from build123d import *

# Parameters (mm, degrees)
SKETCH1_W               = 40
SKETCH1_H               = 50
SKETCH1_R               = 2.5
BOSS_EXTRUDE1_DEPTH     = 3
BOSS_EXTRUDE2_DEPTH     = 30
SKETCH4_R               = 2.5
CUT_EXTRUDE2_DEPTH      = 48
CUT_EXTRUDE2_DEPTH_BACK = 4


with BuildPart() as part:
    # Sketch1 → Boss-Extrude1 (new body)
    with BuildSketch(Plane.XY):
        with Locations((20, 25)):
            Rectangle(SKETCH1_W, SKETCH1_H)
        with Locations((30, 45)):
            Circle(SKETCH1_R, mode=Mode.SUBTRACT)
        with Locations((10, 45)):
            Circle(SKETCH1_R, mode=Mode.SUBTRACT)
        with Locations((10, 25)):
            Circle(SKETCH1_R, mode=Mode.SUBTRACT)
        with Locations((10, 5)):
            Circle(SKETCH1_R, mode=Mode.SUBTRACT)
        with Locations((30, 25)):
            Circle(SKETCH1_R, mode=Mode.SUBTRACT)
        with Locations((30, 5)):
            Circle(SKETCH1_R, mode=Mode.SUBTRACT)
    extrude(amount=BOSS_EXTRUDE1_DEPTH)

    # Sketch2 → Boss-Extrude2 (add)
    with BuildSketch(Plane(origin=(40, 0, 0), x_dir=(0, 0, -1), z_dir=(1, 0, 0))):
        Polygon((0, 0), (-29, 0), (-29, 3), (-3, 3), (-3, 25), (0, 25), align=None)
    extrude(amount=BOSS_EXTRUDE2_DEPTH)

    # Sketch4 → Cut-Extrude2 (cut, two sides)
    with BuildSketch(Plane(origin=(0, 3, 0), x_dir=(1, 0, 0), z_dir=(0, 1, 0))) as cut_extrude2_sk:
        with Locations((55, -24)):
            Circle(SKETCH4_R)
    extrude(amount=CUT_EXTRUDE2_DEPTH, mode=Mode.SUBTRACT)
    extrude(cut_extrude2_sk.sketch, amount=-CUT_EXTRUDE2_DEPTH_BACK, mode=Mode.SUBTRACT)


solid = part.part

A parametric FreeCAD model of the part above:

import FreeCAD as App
import Part
import Sketcher
Q = App.Units.Quantity


def add_polygon(sketch, points):
    """Adds a closed chain of lines whose ends are joined by coincident constraints."""
    first, n = sketch.GeometryCount, len(points)
    for a, b in zip(points, points[1:] + points[:1]):
        sketch.addGeometry(Part.LineSegment(App.Vector(*a, 0), App.Vector(*b, 0)), False)
    for i in range(n):
        sketch.addConstraint(Sketcher.Constraint("Coincident", first + i, 2, first + (i + 1) % n, 1))

doc = App.newDocument("Part")
body = doc.addObject("PartDesign::Body", "Body")

# Sketch on XY plane
sketch1 = body.newObject("Sketcher::SketchObject", "Sketch")
sketch1.AttachmentSupport = (doc.getObject("XY_Plane"), [""])
sketch1.MapMode = "FlatFace"
add_polygon(sketch1, [(0, 50), (0, 0), (40, 0), (40, 50)])  # lines 0-3
sketch1.addGeometry(Part.Circle(App.Vector(10, 5, 0), App.Vector(0, 0, 1), 2.5), False)  # 4
sketch1.addGeometry(Part.Circle(App.Vector(30, 5, 0), App.Vector(0, 0, 1), 2.5), False)  # 5
sketch1.addGeometry(Part.Circle(App.Vector(10, 25, 0), App.Vector(0, 0, 1), 2.5), False)  # 6
sketch1.addGeometry(Part.Circle(App.Vector(10, 45, 0), App.Vector(0, 0, 1), 2.5), False)  # 7
sketch1.addGeometry(Part.Circle(App.Vector(30, 25, 0), App.Vector(0, 0, 1), 2.5), False)  # 8
sketch1.addGeometry(Part.Circle(App.Vector(30, 45, 0), App.Vector(0, 0, 1), 2.5), False)  # 9
sketch1.addConstraint(Sketcher.Constraint("Vertical", 0))
sketch1.addConstraint(Sketcher.Constraint("Horizontal", 1))
sketch1.addConstraint(Sketcher.Constraint("Vertical", 2))
sketch1.addConstraint(Sketcher.Constraint("Horizontal", 3))
sketch1.addConstraint(Sketcher.Constraint("Coincident", 0, 2, -1, 1))
sketch1.addConstraint(Sketcher.Constraint("Equal", 4, 5))
sketch1.addConstraint(Sketcher.Constraint("Equal", 5, 6))
sketch1.addConstraint(Sketcher.Constraint("Equal", 6, 7))
sketch1.addConstraint(Sketcher.Constraint("Equal", 7, 8))
sketch1.addConstraint(Sketcher.Constraint("Equal", 8, 9))
sketch1.addConstraint(Sketcher.Constraint("Horizontal", 4, 3, 5, 3))
sketch1.addConstraint(Sketcher.Constraint("Horizontal", 6, 3, 8, 3))
sketch1.addConstraint(Sketcher.Constraint("Horizontal", 7, 3, 9, 3))
sketch1.addConstraint(Sketcher.Constraint("Vertical", 4, 3, 6, 3))
sketch1.addConstraint(Sketcher.Constraint("Vertical", 6, 3, 7, 3))
sketch1.addConstraint(Sketcher.Constraint("Vertical", 5, 3, 8, 3))
sketch1.addConstraint(Sketcher.Constraint("Vertical", 8, 3, 9, 3))
sketch1.addConstraint(Sketcher.Constraint("Diameter", 4, Q("5 mm")))
sketch1.addConstraint(Sketcher.Constraint("DistanceX", 1, 1, 1, 2, Q("40 mm")))
sketch1.addConstraint(Sketcher.Constraint("DistanceY", 0, 2, 0, 1, Q("50 mm")))
sketch1.addConstraint(Sketcher.Constraint("DistanceX", -1, 1, 4, 3, Q("10 mm")))
sketch1.addConstraint(Sketcher.Constraint("DistanceY", -1, 1, 4, 3, Q("5 mm")))
sketch1.addConstraint(Sketcher.Constraint("DistanceX", -1, 1, 5, 3, Q("30 mm")))
sketch1.addConstraint(Sketcher.Constraint("DistanceY", -1, 1, 6, 3, Q("25 mm")))
sketch1.addConstraint(Sketcher.Constraint("DistanceY", -1, 1, 7, 3, Q("45 mm")))
pad1 = body.newObject("PartDesign::Pad", "Pad")
pad1.Profile = sketch1
pad1.Length = 3

# Sketch on YZ plane
sketch2 = body.newObject("Sketcher::SketchObject", "Sketch001")
sketch2.AttachmentSupport = (doc.getObject("YZ_Plane"), [""])
sketch2.MapMode = "FlatFace"
sketch2.AttachmentOffset = App.Placement(App.Vector(0, 0, 40), App.Rotation())
add_polygon(sketch2, [(0, 29), (0, 0), (25, 0), (25, 3), (3, 3), (3, 29)])  # lines 0-5
sketch2.addConstraint(Sketcher.Constraint("Vertical", 0))
sketch2.addConstraint(Sketcher.Constraint("Horizontal", 1))
sketch2.addConstraint(Sketcher.Constraint("Vertical", 2))
sketch2.addConstraint(Sketcher.Constraint("Horizontal", 3))
sketch2.addConstraint(Sketcher.Constraint("Vertical", 4))
sketch2.addConstraint(Sketcher.Constraint("Horizontal", 5))
sketch2.addConstraint(Sketcher.Constraint("Coincident", 0, 2, -1, 1))
sketch2.addConstraint(Sketcher.Constraint("Equal", 5, 2))
sketch2.addConstraint(Sketcher.Constraint("DistanceX", 1, 1, 1, 2, Q("25 mm")))
sketch2.addConstraint(Sketcher.Constraint("DistanceX", 3, 2, 3, 1, Q("22 mm")))
sketch2.addConstraint(Sketcher.Constraint("DistanceY", 0, 2, 0, 1, Q("29 mm")))
pad2 = body.newObject("PartDesign::Pad", "Pad001")
pad2.Profile = sketch2
pad2.Length = 30

# Sketch on XZ plane
sketch3 = body.newObject("Sketcher::SketchObject", "Sketch002")
sketch3.AttachmentSupport = (doc.getObject("XZ_Plane"), [""])
sketch3.MapMode = "FlatFace"
sketch3.AttachmentOffset = App.Placement(App.Vector(0, 0, -3), App.Rotation())
sketch3.addGeometry(Part.Circle(App.Vector(55, 24, 0), App.Vector(0, 0, 1), 2.5), False)
sketch3.addConstraint(Sketcher.Constraint("Diameter", 0, Q("5 mm")))
sketch3.addConstraint(Sketcher.Constraint("DistanceX", -1, 1, 0, 3, Q("55 mm")))
sketch3.addConstraint(Sketcher.Constraint("DistanceY", -1, 1, 0, 3, Q("24 mm")))
pocket1 = body.newObject("PartDesign::Pocket", "Pocket")
pocket1.Profile = sketch3
pocket1.Type = "ThroughAll"
pocket1.Midplane = True

doc.recompute()
